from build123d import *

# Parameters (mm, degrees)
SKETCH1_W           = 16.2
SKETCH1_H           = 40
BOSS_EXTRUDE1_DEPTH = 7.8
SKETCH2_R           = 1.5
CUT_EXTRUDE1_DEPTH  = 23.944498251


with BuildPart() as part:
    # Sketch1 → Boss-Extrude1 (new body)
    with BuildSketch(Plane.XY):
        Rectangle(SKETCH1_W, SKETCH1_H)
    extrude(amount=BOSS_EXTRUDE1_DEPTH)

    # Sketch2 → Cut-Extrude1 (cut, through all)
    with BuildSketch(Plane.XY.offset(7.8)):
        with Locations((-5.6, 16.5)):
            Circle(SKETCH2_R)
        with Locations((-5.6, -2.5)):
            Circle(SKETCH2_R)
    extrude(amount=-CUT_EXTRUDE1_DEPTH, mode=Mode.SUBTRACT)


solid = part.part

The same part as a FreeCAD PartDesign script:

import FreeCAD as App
import Part
import Sketcher
Q = App.Units.Quantity

doc = App.newDocument("Part")
body = doc.addObject("PartDesign::Body", "Body")

# Sketch on XY plane
sketch1 = body.newObject("Sketcher::SketchObject", "Sketch")
sketch1.AttachmentSupport = (doc.getObject("XY_Plane"), [""])
sketch1.MapMode = "FlatFace"
sketch1.addGeometry(Part.LineSegment(App.Vector(-8, 20, 0), App.Vector(-8, -20, 0)), False)
sketch1.addGeometry(Part.LineSegment(App.Vector(-8, -20, 0), App.Vector(8, -20, 0)), False)
sketch1.addGeometry(Part.LineSegment(App.Vector(8, -20, 0), App.Vector(8, 20, 0)), False)
sketch1.addGeometry(Part.LineSegment(App.Vector(8, 20, 0), App.Vector(-8, 20, 0)), False)
sketch1.addConstraint(Sketcher.Constraint("Coincident", 0, 2, 1, 1))
sketch1.addConstraint(Sketcher.Constraint("Coincident", 1, 2, 2, 1))
sketch1.addConstraint(Sketcher.Constraint("Coincident", 2, 2, 3, 1))
sketch1.addConstraint(Sketcher.Constraint("Coincident", 3, 2, 0, 1))
sketch1.addConstraint(Sketcher.Constraint("Vertical", 0))
sketch1.addConstraint(Sketcher.Constraint("Horizontal", 1))
sketch1.addConstraint(Sketcher.Constraint("Vertical", 2))
sketch1.addConstraint(Sketcher.Constraint("Horizontal", 3))
sketch1.addConstraint(Sketcher.Constraint("Symmetric", 0, 2, 2, 2, -1, 1))
sketch1.addConstraint(Sketcher.Constraint("DistanceY", 0, 2, 0, 1, Q("40 mm")))
sketch1.addConstraint(Sketcher.Constraint("DistanceX", 1, 1, 1, 2, Q("16.2 mm")))
pad1 = body.newObject("PartDesign::Pad", "Pad")
pad1.Profile = sketch1
pad1.Length = 7.8

# Sketch on XY plane
sketch2 = body.newObject("Sketcher::SketchObject", "Sketch001")
sketch2.AttachmentSupport = (doc.getObject("XY_Plane"), [""])
sketch2.MapMode = "FlatFace"
sketch2.AttachmentOffset = App.Placement(App.Vector(0, 0, 7.8), App.Rotation())
sketch2.addGeometry(Part.Circle(App.Vector(-5.6, 16.5, 0), App.Vector(0, 0, 1), 1.5), False)
sketch2.addGeometry(Part.Circle(App.Vector(-5.6, -2.5, 0), App.Vector(0, 0, 1), 1.5), False)
sketch2.addConstraint(Sketcher.Constraint("Equal", 0, 1))
sketch2.addConstraint(Sketcher.Constraint("Vertical", 0, 3, 1, 3))
sketch2.addConstraint(Sketcher.Constraint("Diameter", 0, Q("3 mm")))
sketch2.addConstraint(Sketcher.Constraint("DistanceY", 1, 3, 0, 3, Q("19 mm")))
sketch2.addConstraint(Sketcher.Constraint("DistanceX", 0, 3, -1, 1, Q("5.6 mm")))
sketch2.addConstraint(Sketcher.Constraint("DistanceY", -1, 1, 0, 3, Q("16.5 mm")))
pocket1 = body.newObject("PartDesign::Pocket", "Pocket")
pocket1.Profile = sketch2
pocket1.Type = "ThroughAll"

doc.recompute()
